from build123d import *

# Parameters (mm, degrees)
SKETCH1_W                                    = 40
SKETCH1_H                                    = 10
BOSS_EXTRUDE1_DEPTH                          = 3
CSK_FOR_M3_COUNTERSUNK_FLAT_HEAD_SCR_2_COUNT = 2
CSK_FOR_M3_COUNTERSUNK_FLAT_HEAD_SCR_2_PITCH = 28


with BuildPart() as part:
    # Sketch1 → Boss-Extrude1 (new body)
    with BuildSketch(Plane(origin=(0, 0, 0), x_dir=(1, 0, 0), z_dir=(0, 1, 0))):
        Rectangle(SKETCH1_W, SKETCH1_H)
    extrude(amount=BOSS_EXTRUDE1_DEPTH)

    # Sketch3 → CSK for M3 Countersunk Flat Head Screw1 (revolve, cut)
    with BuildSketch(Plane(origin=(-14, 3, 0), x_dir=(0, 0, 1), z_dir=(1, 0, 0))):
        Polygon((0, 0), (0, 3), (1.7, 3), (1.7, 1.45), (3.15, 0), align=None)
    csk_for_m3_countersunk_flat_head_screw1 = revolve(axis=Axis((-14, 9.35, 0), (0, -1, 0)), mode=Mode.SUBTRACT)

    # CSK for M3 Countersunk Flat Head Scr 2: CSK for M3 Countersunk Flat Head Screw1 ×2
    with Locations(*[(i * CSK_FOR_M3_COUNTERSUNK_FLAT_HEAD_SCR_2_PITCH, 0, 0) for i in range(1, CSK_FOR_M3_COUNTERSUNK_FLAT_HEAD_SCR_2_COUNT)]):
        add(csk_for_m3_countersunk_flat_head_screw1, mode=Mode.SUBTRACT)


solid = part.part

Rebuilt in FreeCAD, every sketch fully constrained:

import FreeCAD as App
import Part
import Sketcher
from FreeCAD import Vector
Q = App.Units.Quantity

doc = App.newDocument("Part")
body = doc.addObject("PartDesign::Body", "Body")

sketch1 = doc.addObject("Sketcher::SketchObject", "Sketch")
body.addObject(sketch1)
sketch1.AttachmentSupport = (doc.XZ_Plane, [""])
sketch1.MapMode = "FlatFace"
sketch1.addGeometry([
    Part.LineSegment(Vector(-20, -5, 0), Vector(-20, 5, 0)),
    Part.LineSegment(Vector(-20, 5, 0), Vector(20, 5, 0)),
    Part.LineSegment(Vector(20, 5, 0), Vector(20, -5, 0)),
    Part.LineSegment(Vector(20, -5, 0), Vector(-20, -5, 0)),
], False)
sketch1.addConstraint([
    Sketcher.Constraint("Coincident", 0, 2, 1, 1),
    Sketcher.Constraint("Coincident", 1, 2, 2, 1),
    Sketcher.Constraint("Coincident", 2, 2, 3, 1),
    Sketcher.Constraint("Coincident", 3, 2, 0, 1),
    Sketcher.Constraint("Vertical", 0),
    Sketcher.Constraint("Horizontal", 1),
    Sketcher.Constraint("Vertical", 2),
    Sketcher.Constraint("Horizontal", 3),
    Sketcher.Constraint("Symmetric", 0, 2, 2, 2, -1, 1),
    Sketcher.Constraint("DistanceX", 1, 1, 1, 2, 40.0),
    Sketcher.Constraint("DistanceY", 0, 1, 0, 2, 10.0),
])
pad1 = doc.addObject("PartDesign::Pad", "Pad")
body.addObject(pad1)
pad1.Profile = sketch1
pad1.Length = 3
pad1.Reversed = True

sketch2 = doc.addObject("Sketcher::SketchObject", "Sketch001")
body.addObject(sketch2)
sketch2.AttachmentSupport = (doc.YZ_Plane, [""])
sketch2.MapMode = "FlatFace"
sketch2.AttachmentOffset = App.Placement(Vector(0, 0, -14), App.Rotation())
sketch2.addGeometry([
    Part.LineSegment(Vector(0, 0, 0), Vector(3, 0, 0)),
    Part.LineSegment(Vector(3, 0, 0), Vector(3, 3.1, 0)),
    Part.LineSegment(Vector(3, 3.1, 0), Vector(1.6, 1.7, 0)),
    Part.LineSegment(Vector(1.6, 1.7, 0), Vector(0, 1.7, 0)),
    Part.LineSegment(Vector(0, 1.7, 0), Vector(0, 0, 0)),
], False)
sketch2.addConstraint([
    Sketcher.Constraint("Coincident", 0, 2, 1, 1),
    Sketcher.Constraint("Coincident", 1, 2, 2, 1),
    Sketcher.Constraint("Coincident", 2, 2, 3, 1),
    Sketcher.Constraint("Coincident", 3, 2, 4, 1),
    Sketcher.Constraint("Coincident", 4, 2, 0, 1),
    Sketcher.Constraint("Horizontal", 0),
    Sketcher.Constraint("Vertical", 1),
    Sketcher.Constraint("Horizontal", 3),
    Sketcher.Constraint("Vertical", 4),
    Sketcher.Constraint("Coincident", 4, 2, -1, 1),
    Sketcher.Constraint("DistanceX", 0, 1, 0, 2, 3.0),
    Sketcher.Constraint("Angle", 2, Q("-135 deg")),
    Sketcher.Constraint("DistanceY", 4, 2, 4, 1, 1.7),
    Sketcher.Constraint("DistanceX", 3, 2, 3, 1, 1.55),
])
groove = doc.addObject("PartDesign::Groove", "Groove")
body.addObject(groove)
groove.Profile = sketch2
groove.ReferenceAxis = (sketch2, ["H_Axis"])
groove.Angle = 360
doc.recompute()

linearpattern = doc.addObject("PartDesign::LinearPattern", "LinearPattern")
body.addObject(linearpattern)
linearpattern.Originals = [groove]
linearpattern.Direction = (doc.X_Axis, [""])
linearpattern.Mode = "offset"
linearpattern.Offset = 28
linearpattern.Occurrences = 2
body.Tip = linearpattern

doc.recompute()
